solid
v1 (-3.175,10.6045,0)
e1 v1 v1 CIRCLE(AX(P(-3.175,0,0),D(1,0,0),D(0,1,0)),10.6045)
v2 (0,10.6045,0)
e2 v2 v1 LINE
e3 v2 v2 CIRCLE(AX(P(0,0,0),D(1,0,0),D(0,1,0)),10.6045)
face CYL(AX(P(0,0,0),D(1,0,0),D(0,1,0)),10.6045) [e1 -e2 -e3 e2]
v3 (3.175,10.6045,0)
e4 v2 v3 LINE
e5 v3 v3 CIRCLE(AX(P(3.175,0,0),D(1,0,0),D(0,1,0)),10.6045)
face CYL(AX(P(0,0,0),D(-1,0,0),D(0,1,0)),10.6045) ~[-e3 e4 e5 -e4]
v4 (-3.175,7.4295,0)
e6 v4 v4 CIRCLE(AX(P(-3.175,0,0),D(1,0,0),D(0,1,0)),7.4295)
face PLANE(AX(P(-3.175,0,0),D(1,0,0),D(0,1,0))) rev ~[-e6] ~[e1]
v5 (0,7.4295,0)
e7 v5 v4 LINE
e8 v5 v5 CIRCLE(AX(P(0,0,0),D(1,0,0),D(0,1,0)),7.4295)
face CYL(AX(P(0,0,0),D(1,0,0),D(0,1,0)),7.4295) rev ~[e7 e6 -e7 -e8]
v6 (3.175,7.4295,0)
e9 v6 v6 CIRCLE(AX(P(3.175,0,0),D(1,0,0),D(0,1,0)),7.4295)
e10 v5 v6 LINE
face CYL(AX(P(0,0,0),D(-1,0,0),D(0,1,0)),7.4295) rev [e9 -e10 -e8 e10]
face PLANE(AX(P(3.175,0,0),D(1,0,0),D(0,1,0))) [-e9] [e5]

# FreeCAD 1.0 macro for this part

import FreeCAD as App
import Part
import Sketcher

V = App.Vector
Q = App.Units.Quantity

doc = App.newDocument("Part")
body = doc.addObject("PartDesign::Body", "Body")

# Sketch on YZ plane
sketch1 = body.newObject("Sketcher::SketchObject", "Sketch")
sketch1.AttachmentSupport = (doc.getObject("YZ_Plane"), [""])
sketch1.MapMode = "FlatFace"
sketch1.addGeometry(Part.Circle(V(0, 0, 0), V(0, 0, 1), 11), False)
sketch1.addGeometry(Part.Circle(V(0, 0, 0), V(0, 0, 1), 7), False)
sketch1.addConstraint(Sketcher.Constraint("Coincident", 0, 3, -1, 1))
sketch1.addConstraint(Sketcher.Constraint("Coincident", 1, 3, -1, 1))
sketch1.addConstraint(Sketcher.Constraint("Diameter", 1, Q("0.585 in")))
sketch1.addConstraint(Sketcher.Constraint("Diameter", 0, Q("0.835 in")))
pad1 = body.newObject("PartDesign::Pad", "Pad")
pad1.Profile = sketch1
pad1.Length = Q("0.25 in")
pad1.Midplane = True

doc.recompute()
